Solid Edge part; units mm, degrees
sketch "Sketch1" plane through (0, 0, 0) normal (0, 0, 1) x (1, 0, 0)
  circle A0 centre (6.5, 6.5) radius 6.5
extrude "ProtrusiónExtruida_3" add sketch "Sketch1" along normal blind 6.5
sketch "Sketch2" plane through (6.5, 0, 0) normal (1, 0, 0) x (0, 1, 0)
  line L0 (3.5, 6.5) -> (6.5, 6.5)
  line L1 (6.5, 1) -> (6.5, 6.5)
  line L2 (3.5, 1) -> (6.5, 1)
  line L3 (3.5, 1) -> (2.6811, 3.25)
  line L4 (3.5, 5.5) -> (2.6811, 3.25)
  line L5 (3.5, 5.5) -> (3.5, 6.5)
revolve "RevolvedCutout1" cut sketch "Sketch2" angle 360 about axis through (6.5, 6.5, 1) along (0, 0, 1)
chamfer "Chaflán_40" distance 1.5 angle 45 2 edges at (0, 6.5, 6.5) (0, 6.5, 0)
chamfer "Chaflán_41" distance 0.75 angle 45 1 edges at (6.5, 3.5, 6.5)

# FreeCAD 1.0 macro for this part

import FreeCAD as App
import Part
import Sketcher
Q = App.Units.Quantity


def edges_at(feature, points):
    """Names of the edges that pass closest to the given points."""
    edges = feature.Shape.Edges
    near = lambda p: min(range(len(edges)), key=lambda i: edges[i].distToShape(Part.Vertex(*p))[0])
    return sorted({f"Edge{near(p) + 1}" for p in points})

doc = App.newDocument("Part")
body = doc.addObject("PartDesign::Body", "Body")

# Sketch on XY plane
sketch1 = doc.addObject("Sketcher::SketchObject", "Sketch")
body.addObject(sketch1)
sketch1.AttachmentSupport = (doc.XY_Plane, [""])
sketch1.MapMode = "FlatFace"
sketch1.addGeometry(Part.Circle(App.Vector(6, 6, 0), App.Vector(0, 0, 1), 6), False)
sketch1.addConstraint([
    Sketcher.Constraint("Diameter", 0, Q("13 mm")),
    Sketcher.Constraint("DistanceX", -1, 1, 0, 3, Q("6.5 mm")),
    Sketcher.Constraint("DistanceY", -1, 1, 0, 3, Q("6.5 mm")),
])
pad1 = doc.addObject("PartDesign::Pad", "Pad")
body.addObject(pad1)
pad1.Profile = sketch1
pad1.Length = 6.5

# Sketch on YZ plane
sketch2 = doc.addObject("Sketcher::SketchObject", "Sketch001")
body.addObject(sketch2)
sketch2.AttachmentSupport = (doc.YZ_Plane, [""])
sketch2.MapMode = "FlatFace"
sketch2.AttachmentOffset = App.Placement(App.Vector(0, 0, 6.5), App.Rotation())
sketch2.addGeometry([
    Part.LineSegment(App.Vector(6.5, 6.5, 0), App.Vector(3.5, 6.5, 0)),  # 0
    Part.LineSegment(App.Vector(3.5, 6.5, 0), App.Vector(3.5, 5.5, 0)),  # 1
    Part.LineSegment(App.Vector(3.5, 5.5, 0), App.Vector(2.7, 3.2, 0)),  # 2
    Part.LineSegment(App.Vector(2.7, 3.2, 0), App.Vector(3.5, 1, 0)),  # 3
    Part.LineSegment(App.Vector(3.5, 1, 0), App.Vector(6.5, 1, 0)),  # 4
    Part.LineSegment(App.Vector(6.5, 1, 0), App.Vector(6.5, 6.5, 0)),  # 5
], False)
sketch2.addGeometry(Part.LineSegment(App.Vector(6.5, 1, 0), App.Vector(6.5, 6.5, 0)), True)  # axis
sketch2.addConstraint([
    Sketcher.Constraint("Coincident", 0, 2, 1, 1),
    Sketcher.Constraint("Coincident", 1, 2, 2, 1),
    Sketcher.Constraint("Coincident", 2, 2, 3, 1),
    Sketcher.Constraint("Coincident", 3, 2, 4, 1),
    Sketcher.Constraint("Coincident", 4, 2, 5, 1),
    Sketcher.Constraint("Coincident", 5, 2, 0, 1),
    Sketcher.Constraint("Horizontal", 0),
    Sketcher.Constraint("Vertical", 1),
    Sketcher.Constraint("Horizontal", 4),
    Sketcher.Constraint("Vertical", 5),
    Sketcher.Constraint("Vertical", 6),
    Sketcher.Constraint("Coincident", 6, 1, 4, 2),
    Sketcher.Constraint("Horizontal", 0, 2, 6, 2),
    Sketcher.Constraint("Vertical", 1, 2, 3, 2),
    Sketcher.Constraint("Equal", 2, 3),
    Sketcher.Constraint("DistanceX", 0, 2, 0, 1, Q("3 mm")),
    Sketcher.Constraint("DistanceY", 1, 2, 1, 1, Q("1 mm")),
    Sketcher.Constraint("Angle", 2, Q("-109.9993 deg")),
    Sketcher.Constraint("DistanceY", 5, 1, 5, 2, Q("5.5 mm")),
    Sketcher.Constraint("DistanceY", -1, 1, 3, 2, Q("1 mm")),
    Sketcher.Constraint("DistanceX", -1, 1, 0, 2, Q("3.5 mm")),
])
groove = doc.addObject("PartDesign::Groove", "Groove")
body.addObject(groove)
groove.Profile = sketch2
groove.ReferenceAxis = (sketch2, ["Axis0"])
groove.Angle = 360
doc.recompute()

chamfer = doc.addObject("PartDesign::Chamfer", "Chamfer")
body.addObject(chamfer)
chamfer.Base = (groove, edges_at(groove, [(0, 6.5, 6.5), (0, 6.5, 0)]))
chamfer.Size = 1.5
doc.recompute()

chamfer2 = doc.addObject("PartDesign::Chamfer", "Chamfer001")
body.addObject(chamfer2)
chamfer2.Base = (chamfer, edges_at(chamfer, [(6.5, 3.5, 6.5)]))
chamfer2.Size = 0.75

doc.recompute()
